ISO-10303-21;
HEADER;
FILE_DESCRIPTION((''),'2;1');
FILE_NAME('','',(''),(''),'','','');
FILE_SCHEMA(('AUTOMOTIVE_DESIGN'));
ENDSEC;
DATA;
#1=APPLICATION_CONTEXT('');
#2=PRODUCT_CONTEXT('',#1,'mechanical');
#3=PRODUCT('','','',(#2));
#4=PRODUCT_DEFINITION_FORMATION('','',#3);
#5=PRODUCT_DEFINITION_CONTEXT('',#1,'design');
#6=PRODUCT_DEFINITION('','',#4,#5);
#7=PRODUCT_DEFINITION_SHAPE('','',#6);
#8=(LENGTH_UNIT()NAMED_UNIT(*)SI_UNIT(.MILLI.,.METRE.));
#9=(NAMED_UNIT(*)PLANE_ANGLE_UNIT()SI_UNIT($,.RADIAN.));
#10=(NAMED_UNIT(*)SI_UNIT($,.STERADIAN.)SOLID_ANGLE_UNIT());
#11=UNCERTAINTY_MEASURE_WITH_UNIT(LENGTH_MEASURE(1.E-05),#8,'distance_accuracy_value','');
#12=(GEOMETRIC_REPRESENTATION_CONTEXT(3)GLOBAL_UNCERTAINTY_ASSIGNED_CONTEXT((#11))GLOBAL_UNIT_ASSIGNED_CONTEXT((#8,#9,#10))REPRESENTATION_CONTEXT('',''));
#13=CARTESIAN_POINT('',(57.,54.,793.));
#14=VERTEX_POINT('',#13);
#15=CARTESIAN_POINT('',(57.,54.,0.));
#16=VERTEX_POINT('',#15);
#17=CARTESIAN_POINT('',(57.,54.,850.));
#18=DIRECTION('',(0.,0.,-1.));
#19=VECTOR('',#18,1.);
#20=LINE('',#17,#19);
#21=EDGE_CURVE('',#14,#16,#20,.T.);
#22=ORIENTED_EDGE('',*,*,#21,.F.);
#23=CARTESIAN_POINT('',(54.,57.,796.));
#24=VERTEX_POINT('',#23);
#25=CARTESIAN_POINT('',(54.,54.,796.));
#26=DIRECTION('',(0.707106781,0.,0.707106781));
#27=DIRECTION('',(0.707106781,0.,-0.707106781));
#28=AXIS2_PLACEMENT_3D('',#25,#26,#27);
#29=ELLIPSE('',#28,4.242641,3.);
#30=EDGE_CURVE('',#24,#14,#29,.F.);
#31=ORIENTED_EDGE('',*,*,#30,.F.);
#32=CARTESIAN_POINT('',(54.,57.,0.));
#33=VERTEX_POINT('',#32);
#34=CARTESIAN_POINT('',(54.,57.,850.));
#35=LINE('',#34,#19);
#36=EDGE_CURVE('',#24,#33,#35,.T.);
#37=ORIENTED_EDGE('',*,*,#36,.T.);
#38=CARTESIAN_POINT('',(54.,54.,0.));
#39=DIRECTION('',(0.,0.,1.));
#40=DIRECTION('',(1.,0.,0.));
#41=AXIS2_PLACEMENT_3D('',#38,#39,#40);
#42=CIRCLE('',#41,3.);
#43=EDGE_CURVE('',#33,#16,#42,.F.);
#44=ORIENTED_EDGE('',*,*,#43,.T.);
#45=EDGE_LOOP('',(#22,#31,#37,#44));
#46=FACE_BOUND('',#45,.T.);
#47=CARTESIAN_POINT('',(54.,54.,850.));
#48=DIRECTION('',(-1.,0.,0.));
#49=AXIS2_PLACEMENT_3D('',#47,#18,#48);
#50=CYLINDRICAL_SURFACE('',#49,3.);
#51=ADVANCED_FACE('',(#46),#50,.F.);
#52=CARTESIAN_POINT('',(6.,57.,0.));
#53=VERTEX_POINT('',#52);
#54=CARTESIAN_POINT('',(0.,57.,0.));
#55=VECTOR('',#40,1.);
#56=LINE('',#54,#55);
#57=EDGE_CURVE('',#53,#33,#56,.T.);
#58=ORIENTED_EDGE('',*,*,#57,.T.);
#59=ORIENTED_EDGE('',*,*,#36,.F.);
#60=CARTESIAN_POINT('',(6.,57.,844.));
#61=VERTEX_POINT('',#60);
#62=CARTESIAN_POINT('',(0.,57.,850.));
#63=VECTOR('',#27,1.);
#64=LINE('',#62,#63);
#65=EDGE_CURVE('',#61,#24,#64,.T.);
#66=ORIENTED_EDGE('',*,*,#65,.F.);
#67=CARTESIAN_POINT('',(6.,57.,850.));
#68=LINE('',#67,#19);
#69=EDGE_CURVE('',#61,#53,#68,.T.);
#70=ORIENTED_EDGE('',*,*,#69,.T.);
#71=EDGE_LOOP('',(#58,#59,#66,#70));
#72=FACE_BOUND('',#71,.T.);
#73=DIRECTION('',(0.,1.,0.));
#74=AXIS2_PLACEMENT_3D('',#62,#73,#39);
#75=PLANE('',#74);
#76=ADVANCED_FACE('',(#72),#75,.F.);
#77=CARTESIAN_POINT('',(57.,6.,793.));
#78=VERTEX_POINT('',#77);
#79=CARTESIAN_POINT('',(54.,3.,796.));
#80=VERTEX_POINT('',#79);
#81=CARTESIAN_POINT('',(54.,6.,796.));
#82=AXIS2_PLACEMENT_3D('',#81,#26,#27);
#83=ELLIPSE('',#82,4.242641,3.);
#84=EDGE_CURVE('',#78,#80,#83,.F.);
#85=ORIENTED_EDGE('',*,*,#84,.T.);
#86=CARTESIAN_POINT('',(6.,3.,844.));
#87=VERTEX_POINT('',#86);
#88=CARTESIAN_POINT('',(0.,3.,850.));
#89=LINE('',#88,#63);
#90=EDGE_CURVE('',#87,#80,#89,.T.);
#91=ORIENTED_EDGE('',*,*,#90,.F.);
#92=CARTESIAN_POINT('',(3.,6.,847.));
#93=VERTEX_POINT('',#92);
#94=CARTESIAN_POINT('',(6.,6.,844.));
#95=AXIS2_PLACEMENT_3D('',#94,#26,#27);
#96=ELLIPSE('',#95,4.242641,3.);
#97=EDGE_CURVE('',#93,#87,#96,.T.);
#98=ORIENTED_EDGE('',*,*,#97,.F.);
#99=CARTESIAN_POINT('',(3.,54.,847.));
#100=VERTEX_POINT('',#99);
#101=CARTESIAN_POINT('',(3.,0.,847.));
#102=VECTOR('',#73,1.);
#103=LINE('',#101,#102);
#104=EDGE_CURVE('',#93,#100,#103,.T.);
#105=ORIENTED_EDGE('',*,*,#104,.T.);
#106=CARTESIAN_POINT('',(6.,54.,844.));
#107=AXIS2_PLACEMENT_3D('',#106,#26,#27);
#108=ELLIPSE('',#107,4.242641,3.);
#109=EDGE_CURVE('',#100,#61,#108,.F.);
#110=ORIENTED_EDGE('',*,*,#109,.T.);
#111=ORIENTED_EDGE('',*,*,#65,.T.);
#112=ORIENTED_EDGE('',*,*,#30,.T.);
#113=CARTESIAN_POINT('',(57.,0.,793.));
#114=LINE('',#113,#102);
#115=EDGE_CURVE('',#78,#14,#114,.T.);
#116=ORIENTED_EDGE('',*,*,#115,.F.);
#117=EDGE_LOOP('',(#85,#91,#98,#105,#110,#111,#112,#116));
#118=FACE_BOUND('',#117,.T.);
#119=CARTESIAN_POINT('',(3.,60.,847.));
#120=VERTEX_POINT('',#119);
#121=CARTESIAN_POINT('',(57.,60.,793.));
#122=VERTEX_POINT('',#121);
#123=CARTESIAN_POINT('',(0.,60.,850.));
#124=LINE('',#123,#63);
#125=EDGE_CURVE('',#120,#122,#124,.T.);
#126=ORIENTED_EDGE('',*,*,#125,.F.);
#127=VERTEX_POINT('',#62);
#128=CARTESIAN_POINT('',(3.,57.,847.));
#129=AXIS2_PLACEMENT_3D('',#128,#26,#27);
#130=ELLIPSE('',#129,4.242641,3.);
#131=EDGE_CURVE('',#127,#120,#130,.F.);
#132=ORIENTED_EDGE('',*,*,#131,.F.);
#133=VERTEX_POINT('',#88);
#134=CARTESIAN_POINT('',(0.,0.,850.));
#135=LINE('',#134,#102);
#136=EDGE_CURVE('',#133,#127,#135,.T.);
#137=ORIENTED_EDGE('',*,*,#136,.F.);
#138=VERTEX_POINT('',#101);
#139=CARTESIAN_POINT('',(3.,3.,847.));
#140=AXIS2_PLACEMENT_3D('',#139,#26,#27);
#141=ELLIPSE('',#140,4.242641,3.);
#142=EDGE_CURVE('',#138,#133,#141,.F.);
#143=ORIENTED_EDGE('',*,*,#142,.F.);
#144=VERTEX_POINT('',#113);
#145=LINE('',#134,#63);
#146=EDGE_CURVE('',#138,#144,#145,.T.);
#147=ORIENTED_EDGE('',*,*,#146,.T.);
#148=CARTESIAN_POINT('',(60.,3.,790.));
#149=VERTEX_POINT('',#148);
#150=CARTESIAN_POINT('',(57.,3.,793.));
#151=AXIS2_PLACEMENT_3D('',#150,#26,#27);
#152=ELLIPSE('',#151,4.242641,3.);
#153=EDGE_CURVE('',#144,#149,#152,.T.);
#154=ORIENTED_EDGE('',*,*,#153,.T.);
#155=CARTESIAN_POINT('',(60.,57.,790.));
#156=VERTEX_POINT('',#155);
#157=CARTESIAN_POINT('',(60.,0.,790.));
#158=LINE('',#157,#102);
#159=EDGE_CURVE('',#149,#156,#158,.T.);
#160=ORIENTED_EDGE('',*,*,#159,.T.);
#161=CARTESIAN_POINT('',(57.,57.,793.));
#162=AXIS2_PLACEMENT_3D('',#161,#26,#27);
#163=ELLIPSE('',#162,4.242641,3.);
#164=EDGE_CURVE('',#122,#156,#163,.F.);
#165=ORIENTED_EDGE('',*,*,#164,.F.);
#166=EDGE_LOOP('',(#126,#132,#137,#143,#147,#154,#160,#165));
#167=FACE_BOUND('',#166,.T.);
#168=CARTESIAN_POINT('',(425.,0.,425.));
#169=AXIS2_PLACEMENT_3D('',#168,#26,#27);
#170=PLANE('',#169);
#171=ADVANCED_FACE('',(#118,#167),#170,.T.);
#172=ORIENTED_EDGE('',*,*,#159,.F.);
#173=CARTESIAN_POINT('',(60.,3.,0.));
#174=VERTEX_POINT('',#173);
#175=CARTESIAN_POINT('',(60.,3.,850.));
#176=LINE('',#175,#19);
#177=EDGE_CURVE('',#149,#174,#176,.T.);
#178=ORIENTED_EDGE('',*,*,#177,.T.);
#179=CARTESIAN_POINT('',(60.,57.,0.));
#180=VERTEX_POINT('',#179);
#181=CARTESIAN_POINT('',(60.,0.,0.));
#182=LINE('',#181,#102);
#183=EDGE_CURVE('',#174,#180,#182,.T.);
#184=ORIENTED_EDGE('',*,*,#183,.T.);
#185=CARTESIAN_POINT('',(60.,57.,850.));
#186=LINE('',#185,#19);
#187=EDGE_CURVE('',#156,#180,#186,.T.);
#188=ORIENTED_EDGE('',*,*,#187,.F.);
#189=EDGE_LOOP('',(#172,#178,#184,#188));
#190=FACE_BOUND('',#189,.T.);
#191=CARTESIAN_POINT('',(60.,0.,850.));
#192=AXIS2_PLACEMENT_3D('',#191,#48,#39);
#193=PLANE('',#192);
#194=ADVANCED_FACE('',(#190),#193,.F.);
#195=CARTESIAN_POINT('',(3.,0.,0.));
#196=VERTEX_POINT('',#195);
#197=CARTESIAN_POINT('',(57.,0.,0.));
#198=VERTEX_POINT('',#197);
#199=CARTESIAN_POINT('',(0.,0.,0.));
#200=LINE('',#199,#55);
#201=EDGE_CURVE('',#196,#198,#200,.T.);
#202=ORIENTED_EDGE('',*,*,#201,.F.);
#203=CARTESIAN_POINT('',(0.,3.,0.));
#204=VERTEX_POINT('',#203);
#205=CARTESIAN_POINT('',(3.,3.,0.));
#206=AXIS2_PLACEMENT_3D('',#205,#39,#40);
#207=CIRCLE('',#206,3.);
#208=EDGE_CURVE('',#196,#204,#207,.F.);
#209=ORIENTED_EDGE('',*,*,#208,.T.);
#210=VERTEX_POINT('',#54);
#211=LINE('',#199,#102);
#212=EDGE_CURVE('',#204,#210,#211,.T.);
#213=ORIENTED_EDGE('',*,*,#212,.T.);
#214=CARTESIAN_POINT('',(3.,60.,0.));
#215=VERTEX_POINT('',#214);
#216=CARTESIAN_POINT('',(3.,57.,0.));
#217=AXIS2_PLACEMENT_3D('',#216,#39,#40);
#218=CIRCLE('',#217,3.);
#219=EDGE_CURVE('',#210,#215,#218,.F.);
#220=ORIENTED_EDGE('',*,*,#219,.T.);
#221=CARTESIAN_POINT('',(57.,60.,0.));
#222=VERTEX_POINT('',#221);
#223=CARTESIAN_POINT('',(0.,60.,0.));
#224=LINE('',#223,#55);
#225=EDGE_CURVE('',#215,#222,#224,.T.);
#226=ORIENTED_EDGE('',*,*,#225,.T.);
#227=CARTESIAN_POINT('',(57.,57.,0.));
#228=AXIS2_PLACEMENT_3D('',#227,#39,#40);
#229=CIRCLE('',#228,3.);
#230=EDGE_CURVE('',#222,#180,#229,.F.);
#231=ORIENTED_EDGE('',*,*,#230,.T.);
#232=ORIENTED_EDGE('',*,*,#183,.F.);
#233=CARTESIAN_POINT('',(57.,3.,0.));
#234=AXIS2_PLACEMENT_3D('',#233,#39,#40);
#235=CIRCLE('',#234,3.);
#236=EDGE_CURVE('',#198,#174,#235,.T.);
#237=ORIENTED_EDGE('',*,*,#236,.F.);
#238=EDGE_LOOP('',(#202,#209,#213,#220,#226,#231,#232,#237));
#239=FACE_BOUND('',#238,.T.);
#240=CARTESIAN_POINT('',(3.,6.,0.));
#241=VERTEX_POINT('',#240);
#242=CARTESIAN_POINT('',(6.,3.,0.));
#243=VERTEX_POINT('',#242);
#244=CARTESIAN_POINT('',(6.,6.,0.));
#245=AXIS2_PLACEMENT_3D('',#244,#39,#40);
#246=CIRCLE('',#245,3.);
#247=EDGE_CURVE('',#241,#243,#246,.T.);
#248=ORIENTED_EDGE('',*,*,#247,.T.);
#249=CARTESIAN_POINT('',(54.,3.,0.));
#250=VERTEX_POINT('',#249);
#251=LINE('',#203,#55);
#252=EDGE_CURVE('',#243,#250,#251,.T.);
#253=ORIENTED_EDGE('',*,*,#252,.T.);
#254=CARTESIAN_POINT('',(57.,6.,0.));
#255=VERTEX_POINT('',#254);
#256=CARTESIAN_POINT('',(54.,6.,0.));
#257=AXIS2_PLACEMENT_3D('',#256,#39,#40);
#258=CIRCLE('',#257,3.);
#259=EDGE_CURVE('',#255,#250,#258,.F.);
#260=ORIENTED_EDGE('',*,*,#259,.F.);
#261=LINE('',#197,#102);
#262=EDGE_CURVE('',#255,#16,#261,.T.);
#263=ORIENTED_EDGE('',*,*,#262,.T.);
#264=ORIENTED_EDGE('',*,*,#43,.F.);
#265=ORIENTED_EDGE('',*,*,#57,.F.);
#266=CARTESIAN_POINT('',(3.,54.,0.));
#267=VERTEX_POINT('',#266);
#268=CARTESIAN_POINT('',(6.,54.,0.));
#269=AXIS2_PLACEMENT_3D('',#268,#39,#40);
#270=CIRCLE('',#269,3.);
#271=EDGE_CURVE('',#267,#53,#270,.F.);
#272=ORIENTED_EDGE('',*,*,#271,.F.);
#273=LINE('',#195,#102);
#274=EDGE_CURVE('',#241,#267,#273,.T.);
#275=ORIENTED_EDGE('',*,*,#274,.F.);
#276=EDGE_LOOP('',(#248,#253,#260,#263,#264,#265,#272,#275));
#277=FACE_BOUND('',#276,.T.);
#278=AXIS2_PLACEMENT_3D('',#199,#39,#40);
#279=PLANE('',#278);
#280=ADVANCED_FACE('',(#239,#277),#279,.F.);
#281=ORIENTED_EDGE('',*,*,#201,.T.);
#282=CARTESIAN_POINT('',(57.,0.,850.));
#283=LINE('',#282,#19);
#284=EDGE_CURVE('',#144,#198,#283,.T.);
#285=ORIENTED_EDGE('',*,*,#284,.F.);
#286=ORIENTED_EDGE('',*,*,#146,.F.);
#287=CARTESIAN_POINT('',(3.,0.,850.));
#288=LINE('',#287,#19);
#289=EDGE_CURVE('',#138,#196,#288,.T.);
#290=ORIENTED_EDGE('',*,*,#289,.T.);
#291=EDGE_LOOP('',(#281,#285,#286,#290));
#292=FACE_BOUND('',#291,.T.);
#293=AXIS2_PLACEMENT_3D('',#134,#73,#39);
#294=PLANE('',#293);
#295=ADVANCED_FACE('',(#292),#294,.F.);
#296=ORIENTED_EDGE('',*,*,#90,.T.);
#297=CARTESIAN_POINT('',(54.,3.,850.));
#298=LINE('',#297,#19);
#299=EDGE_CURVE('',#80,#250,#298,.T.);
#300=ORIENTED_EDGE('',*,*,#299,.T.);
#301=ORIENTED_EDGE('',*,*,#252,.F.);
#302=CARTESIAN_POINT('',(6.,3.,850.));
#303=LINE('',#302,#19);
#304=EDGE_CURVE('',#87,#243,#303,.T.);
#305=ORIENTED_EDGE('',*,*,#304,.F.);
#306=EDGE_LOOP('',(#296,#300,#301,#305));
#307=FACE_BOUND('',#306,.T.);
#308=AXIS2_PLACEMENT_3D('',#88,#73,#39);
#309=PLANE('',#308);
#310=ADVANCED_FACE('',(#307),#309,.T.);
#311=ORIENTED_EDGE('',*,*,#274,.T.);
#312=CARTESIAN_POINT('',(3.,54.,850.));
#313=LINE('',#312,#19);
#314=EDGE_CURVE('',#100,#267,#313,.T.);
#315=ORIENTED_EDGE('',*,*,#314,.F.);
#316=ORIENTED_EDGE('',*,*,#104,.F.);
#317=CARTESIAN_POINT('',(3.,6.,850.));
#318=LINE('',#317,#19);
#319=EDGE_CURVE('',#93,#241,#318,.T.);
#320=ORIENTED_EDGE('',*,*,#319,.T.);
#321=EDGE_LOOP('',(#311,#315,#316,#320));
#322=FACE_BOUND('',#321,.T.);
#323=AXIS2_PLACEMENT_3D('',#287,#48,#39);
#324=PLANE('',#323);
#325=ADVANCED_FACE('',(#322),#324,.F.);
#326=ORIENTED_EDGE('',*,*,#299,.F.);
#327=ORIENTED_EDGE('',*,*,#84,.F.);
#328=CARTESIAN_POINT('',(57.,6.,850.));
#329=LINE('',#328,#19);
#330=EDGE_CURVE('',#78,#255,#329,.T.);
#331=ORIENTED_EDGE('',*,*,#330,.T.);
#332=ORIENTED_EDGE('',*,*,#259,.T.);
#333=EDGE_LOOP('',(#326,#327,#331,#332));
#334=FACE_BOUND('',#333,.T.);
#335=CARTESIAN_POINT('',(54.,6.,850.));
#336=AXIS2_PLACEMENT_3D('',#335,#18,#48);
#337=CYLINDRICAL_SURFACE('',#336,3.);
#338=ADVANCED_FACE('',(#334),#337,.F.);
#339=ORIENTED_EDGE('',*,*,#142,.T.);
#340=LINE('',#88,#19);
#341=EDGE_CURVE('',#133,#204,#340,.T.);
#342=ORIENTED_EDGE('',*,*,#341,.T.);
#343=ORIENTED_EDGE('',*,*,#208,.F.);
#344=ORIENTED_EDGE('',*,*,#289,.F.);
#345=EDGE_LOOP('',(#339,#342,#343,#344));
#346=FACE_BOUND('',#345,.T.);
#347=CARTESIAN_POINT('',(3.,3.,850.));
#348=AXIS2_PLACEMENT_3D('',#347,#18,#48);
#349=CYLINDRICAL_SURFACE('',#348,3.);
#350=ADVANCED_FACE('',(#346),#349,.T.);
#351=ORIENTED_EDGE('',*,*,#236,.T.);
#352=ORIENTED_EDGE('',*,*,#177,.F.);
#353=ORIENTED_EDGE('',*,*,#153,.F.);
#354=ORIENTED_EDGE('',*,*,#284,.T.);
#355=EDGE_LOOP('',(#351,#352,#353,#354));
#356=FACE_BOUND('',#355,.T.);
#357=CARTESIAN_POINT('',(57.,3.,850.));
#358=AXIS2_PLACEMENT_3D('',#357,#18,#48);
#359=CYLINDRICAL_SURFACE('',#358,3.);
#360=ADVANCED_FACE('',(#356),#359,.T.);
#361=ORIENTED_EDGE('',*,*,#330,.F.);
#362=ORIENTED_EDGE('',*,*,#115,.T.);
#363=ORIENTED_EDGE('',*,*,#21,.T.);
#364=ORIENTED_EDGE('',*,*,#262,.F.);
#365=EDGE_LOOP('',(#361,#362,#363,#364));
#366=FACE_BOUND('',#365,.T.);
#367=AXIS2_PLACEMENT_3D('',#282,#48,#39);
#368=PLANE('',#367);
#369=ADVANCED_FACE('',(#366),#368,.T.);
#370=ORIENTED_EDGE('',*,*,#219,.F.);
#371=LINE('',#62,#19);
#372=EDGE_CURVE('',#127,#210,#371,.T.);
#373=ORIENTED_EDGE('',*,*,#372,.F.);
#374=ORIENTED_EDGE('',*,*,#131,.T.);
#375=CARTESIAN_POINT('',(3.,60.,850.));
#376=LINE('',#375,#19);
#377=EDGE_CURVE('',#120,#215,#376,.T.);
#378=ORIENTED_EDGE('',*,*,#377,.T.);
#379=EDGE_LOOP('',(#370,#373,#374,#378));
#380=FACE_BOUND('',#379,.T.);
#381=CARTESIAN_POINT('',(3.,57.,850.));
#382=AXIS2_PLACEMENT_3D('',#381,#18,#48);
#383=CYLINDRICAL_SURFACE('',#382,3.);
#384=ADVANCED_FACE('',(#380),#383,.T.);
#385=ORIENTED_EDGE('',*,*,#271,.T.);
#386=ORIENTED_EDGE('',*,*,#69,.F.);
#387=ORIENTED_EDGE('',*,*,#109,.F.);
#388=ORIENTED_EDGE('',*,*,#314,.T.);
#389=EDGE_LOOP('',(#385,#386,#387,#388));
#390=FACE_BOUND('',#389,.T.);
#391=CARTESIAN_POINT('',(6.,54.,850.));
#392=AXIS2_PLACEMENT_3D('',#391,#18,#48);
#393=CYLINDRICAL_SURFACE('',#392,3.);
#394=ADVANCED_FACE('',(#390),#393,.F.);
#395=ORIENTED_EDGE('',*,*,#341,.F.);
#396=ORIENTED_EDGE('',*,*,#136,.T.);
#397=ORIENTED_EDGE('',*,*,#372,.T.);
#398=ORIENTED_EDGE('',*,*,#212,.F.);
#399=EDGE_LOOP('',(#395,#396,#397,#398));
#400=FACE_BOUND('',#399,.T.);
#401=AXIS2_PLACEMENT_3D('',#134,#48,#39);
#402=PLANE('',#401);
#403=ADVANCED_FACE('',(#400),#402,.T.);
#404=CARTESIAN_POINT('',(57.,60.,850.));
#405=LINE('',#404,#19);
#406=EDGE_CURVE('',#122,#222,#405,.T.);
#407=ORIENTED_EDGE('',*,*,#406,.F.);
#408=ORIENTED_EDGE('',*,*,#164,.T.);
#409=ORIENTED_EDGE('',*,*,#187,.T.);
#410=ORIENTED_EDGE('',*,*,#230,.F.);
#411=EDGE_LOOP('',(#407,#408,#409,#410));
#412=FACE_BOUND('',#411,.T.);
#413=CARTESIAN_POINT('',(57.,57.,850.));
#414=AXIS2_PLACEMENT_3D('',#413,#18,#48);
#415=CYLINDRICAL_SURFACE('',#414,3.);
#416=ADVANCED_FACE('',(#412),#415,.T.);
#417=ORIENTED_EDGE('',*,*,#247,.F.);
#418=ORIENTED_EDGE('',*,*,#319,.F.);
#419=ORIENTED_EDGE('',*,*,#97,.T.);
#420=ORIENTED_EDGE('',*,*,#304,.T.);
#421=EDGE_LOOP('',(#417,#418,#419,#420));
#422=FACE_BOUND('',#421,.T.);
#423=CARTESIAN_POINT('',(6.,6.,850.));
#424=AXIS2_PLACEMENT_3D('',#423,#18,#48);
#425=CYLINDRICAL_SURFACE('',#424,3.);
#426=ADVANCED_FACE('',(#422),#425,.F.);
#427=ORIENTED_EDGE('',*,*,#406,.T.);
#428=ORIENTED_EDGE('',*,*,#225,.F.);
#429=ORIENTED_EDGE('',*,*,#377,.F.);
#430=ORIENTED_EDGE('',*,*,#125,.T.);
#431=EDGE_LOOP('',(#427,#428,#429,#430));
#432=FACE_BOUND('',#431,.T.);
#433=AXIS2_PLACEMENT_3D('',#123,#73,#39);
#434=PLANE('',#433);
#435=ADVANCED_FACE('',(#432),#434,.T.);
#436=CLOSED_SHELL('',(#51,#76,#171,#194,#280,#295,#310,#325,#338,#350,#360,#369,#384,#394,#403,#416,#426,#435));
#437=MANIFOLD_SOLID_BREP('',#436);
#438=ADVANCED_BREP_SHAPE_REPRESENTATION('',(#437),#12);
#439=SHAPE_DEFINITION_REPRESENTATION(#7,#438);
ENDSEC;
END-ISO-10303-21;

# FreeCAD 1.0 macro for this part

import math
import FreeCAD as App
import Part
import Sketcher
from FreeCAD import Vector
Q = App.Units.Quantity


def add_polygon(sketch, points):
    """Adds a closed chain of lines whose ends are joined by coincident constraints."""
    first, n = sketch.GeometryCount, len(points)
    for a, b in zip(points, points[1:] + points[:1]):
        sketch.addGeometry(Part.LineSegment(App.Vector(*a, 0), App.Vector(*b, 0)), False)
    for i in range(n):
        sketch.addConstraint(Sketcher.Constraint("Coincident", first + i, 2, first + (i + 1) % n, 1))

doc = App.newDocument("Part")
body = doc.addObject("PartDesign::Body", "Body")

sketch1 = body.newObject("Sketcher::SketchObject", "Sketch")
sketch1.AttachmentSupport = (doc.getObject("XY_Plane"), [""])
sketch1.MapMode = "FlatFace"
sketch1.addGeometry(Part.ArcOfCircle(Part.Circle(Vector(3, 57, 0), Vector(0, 0, 1), 3), math.radians(90), math.radians(180)), False)
sketch1.addGeometry(Part.LineSegment(Vector(0, 57, 0), Vector(0, 3, 0)), False)
sketch1.addGeometry(Part.ArcOfCircle(Part.Circle(Vector(3, 3, 0), Vector(0, 0, 1), 3), math.radians(180), math.radians(270)), False)
sketch1.addGeometry(Part.LineSegment(Vector(3, 0, 0), Vector(57, 0, 0)), False)
sketch1.addGeometry(Part.ArcOfCircle(Part.Circle(Vector(57, 3, 0), Vector(0, 0, 1), 3), math.radians(-90), math.radians(0)), False)
sketch1.addGeometry(Part.LineSegment(Vector(60, 3, 0), Vector(60, 57, 0)), False)
sketch1.addGeometry(Part.ArcOfCircle(Part.Circle(Vector(57, 57, 0), Vector(0, 0, 1), 3), math.radians(0), math.radians(90)), False)
sketch1.addGeometry(Part.LineSegment(Vector(57, 60, 0), Vector(3, 60, 0)), False)
sketch1.addGeometry(Part.LineSegment(Vector(3, 6, 0), Vector(3, 54, 0)), False)
sketch1.addGeometry(Part.ArcOfCircle(Part.Circle(Vector(6, 54, 0), Vector(0, 0, 1), 3), math.radians(90), math.radians(180)), False)
sketch1.addGeometry(Part.LineSegment(Vector(6, 57, 0), Vector(54, 57, 0)), False)
sketch1.addGeometry(Part.ArcOfCircle(Part.Circle(Vector(54, 54, 0), Vector(0, 0, 1), 3), math.radians(0), math.radians(90)), False)
sketch1.addGeometry(Part.LineSegment(Vector(57, 54, 0), Vector(57, 6, 0)), False)
sketch1.addGeometry(Part.ArcOfCircle(Part.Circle(Vector(54, 6, 0), Vector(0, 0, 1), 3), math.radians(-90), math.radians(0)), False)
sketch1.addGeometry(Part.LineSegment(Vector(54, 3, 0), Vector(6, 3, 0)), False)
sketch1.addGeometry(Part.ArcOfCircle(Part.Circle(Vector(6, 6, 0), Vector(0, 0, 1), 3), math.radians(180), math.radians(270)), False)
sketch1.addConstraint(Sketcher.Constraint("Tangent", 0, 2, 1, 1))
sketch1.addConstraint(Sketcher.Constraint("Tangent", 1, 2, 2, 1))
sketch1.addConstraint(Sketcher.Constraint("Tangent", 2, 2, 3, 1))
sketch1.addConstraint(Sketcher.Constraint("Tangent", 3, 2, 4, 1))
sketch1.addConstraint(Sketcher.Constraint("Tangent", 4, 2, 5, 1))
sketch1.addConstraint(Sketcher.Constraint("Tangent", 5, 2, 6, 1))
sketch1.addConstraint(Sketcher.Constraint("Tangent", 6, 2, 7, 1))
sketch1.addConstraint(Sketcher.Constraint("Tangent", 7, 2, 0, 1))
sketch1.addConstraint(Sketcher.Constraint("Tangent", 8, 2, 9, 2))
sketch1.addConstraint(Sketcher.Constraint("Tangent", 9, 1, 10, 1))
sketch1.addConstraint(Sketcher.Constraint("Tangent", 10, 2, 11, 2))
sketch1.addConstraint(Sketcher.Constraint("Tangent", 11, 1, 12, 1))
sketch1.addConstraint(Sketcher.Constraint("Tangent", 12, 2, 13, 2))
sketch1.addConstraint(Sketcher.Constraint("Tangent", 13, 1, 14, 1))
sketch1.addConstraint(Sketcher.Constraint("Tangent", 14, 2, 15, 2))
sketch1.addConstraint(Sketcher.Constraint("Tangent", 15, 1, 8, 1))
sketch1.addConstraint(Sketcher.Constraint("Vertical", 1))
sketch1.addConstraint(Sketcher.Constraint("Horizontal", 3))
sketch1.addConstraint(Sketcher.Constraint("Vertical", 5))
sketch1.addConstraint(Sketcher.Constraint("Horizontal", 7))
sketch1.addConstraint(Sketcher.Constraint("Vertical", 8))
sketch1.addConstraint(Sketcher.Constraint("Horizontal", 10))
sketch1.addConstraint(Sketcher.Constraint("Vertical", 12))
sketch1.addConstraint(Sketcher.Constraint("Horizontal", 14))
sketch1.addConstraint(Sketcher.Constraint("Equal", 0, 2))
sketch1.addConstraint(Sketcher.Constraint("Equal", 2, 4))
sketch1.addConstraint(Sketcher.Constraint("Equal", 4, 6))
sketch1.addConstraint(Sketcher.Constraint("Equal", 6, 9))
sketch1.addConstraint(Sketcher.Constraint("Equal", 9, 11))
sketch1.addConstraint(Sketcher.Constraint("Equal", 11, 13))
sketch1.addConstraint(Sketcher.Constraint("Equal", 13, 15))
sketch1.addConstraint(Sketcher.Constraint("PointOnObject", 0, 2, -2))
sketch1.addConstraint(Sketcher.Constraint("PointOnObject", 2, 2, -1))
sketch1.addConstraint(Sketcher.Constraint("Horizontal", 5, 2, 9, 1))
sketch1.addConstraint(Sketcher.Constraint("Horizontal", 4, 2, 13, 1))
sketch1.addConstraint(Sketcher.Constraint("Vertical", 7, 2, 8, 2))
sketch1.addConstraint(Sketcher.Constraint("Vertical", 6, 2, 11, 1))
sketch1.addConstraint(Sketcher.Constraint("Equal", 7, 1))
sketch1.addConstraint(Sketcher.Constraint("Radius", 0, Q("3 mm")))
sketch1.addConstraint(Sketcher.Constraint("DistanceX", 3, 1, 3, 2, Q("54 mm")))
pad1 = body.newObject("PartDesign::Pad", "Pad")
pad1.Profile = sketch1
pad1.Length = 850

sketch2 = body.newObject("Sketcher::SketchObject", "Sketch001")
sketch2.Placement = App.Placement(Vector(425, 0, 425), App.Rotation(Vector(0, 1, 0), Vector(-0.707106781, 0, 0.707106781), Vector(0.707106781, 0, 0.707106781), "ZXY"))
add_polygon(sketch2, [(-54.78067, 632.758602), (-54.78067, 514.075505), (128.667851, 514.075505), (128.667851, 632.758602)])
sketch2.addConstraint(Sketcher.Constraint("Vertical", 0))
sketch2.addConstraint(Sketcher.Constraint("Horizontal", 1))
sketch2.addConstraint(Sketcher.Constraint("Vertical", 2))
sketch2.addConstraint(Sketcher.Constraint("Horizontal", 3))
sketch2.addConstraint(Sketcher.Constraint("DistanceX", 1, 1, 1, 2, Q("183.448521 mm")))
sketch2.addConstraint(Sketcher.Constraint("DistanceY", -1, 1, 2, 2, Q("632.758602 mm")))
sketch2.addConstraint(Sketcher.Constraint("DistanceY", 0, 2, 0, 1, Q("118.683097 mm")))
sketch2.addConstraint(Sketcher.Constraint("DistanceX", 0, 2, -1, 1, Q("54.78067 mm")))
pocket1 = body.newObject("PartDesign::Pocket", "Pocket")
pocket1.Profile = sketch2
pocket1.Type = "ThroughAll"
pocket1.Reversed = True

doc.recompute()
